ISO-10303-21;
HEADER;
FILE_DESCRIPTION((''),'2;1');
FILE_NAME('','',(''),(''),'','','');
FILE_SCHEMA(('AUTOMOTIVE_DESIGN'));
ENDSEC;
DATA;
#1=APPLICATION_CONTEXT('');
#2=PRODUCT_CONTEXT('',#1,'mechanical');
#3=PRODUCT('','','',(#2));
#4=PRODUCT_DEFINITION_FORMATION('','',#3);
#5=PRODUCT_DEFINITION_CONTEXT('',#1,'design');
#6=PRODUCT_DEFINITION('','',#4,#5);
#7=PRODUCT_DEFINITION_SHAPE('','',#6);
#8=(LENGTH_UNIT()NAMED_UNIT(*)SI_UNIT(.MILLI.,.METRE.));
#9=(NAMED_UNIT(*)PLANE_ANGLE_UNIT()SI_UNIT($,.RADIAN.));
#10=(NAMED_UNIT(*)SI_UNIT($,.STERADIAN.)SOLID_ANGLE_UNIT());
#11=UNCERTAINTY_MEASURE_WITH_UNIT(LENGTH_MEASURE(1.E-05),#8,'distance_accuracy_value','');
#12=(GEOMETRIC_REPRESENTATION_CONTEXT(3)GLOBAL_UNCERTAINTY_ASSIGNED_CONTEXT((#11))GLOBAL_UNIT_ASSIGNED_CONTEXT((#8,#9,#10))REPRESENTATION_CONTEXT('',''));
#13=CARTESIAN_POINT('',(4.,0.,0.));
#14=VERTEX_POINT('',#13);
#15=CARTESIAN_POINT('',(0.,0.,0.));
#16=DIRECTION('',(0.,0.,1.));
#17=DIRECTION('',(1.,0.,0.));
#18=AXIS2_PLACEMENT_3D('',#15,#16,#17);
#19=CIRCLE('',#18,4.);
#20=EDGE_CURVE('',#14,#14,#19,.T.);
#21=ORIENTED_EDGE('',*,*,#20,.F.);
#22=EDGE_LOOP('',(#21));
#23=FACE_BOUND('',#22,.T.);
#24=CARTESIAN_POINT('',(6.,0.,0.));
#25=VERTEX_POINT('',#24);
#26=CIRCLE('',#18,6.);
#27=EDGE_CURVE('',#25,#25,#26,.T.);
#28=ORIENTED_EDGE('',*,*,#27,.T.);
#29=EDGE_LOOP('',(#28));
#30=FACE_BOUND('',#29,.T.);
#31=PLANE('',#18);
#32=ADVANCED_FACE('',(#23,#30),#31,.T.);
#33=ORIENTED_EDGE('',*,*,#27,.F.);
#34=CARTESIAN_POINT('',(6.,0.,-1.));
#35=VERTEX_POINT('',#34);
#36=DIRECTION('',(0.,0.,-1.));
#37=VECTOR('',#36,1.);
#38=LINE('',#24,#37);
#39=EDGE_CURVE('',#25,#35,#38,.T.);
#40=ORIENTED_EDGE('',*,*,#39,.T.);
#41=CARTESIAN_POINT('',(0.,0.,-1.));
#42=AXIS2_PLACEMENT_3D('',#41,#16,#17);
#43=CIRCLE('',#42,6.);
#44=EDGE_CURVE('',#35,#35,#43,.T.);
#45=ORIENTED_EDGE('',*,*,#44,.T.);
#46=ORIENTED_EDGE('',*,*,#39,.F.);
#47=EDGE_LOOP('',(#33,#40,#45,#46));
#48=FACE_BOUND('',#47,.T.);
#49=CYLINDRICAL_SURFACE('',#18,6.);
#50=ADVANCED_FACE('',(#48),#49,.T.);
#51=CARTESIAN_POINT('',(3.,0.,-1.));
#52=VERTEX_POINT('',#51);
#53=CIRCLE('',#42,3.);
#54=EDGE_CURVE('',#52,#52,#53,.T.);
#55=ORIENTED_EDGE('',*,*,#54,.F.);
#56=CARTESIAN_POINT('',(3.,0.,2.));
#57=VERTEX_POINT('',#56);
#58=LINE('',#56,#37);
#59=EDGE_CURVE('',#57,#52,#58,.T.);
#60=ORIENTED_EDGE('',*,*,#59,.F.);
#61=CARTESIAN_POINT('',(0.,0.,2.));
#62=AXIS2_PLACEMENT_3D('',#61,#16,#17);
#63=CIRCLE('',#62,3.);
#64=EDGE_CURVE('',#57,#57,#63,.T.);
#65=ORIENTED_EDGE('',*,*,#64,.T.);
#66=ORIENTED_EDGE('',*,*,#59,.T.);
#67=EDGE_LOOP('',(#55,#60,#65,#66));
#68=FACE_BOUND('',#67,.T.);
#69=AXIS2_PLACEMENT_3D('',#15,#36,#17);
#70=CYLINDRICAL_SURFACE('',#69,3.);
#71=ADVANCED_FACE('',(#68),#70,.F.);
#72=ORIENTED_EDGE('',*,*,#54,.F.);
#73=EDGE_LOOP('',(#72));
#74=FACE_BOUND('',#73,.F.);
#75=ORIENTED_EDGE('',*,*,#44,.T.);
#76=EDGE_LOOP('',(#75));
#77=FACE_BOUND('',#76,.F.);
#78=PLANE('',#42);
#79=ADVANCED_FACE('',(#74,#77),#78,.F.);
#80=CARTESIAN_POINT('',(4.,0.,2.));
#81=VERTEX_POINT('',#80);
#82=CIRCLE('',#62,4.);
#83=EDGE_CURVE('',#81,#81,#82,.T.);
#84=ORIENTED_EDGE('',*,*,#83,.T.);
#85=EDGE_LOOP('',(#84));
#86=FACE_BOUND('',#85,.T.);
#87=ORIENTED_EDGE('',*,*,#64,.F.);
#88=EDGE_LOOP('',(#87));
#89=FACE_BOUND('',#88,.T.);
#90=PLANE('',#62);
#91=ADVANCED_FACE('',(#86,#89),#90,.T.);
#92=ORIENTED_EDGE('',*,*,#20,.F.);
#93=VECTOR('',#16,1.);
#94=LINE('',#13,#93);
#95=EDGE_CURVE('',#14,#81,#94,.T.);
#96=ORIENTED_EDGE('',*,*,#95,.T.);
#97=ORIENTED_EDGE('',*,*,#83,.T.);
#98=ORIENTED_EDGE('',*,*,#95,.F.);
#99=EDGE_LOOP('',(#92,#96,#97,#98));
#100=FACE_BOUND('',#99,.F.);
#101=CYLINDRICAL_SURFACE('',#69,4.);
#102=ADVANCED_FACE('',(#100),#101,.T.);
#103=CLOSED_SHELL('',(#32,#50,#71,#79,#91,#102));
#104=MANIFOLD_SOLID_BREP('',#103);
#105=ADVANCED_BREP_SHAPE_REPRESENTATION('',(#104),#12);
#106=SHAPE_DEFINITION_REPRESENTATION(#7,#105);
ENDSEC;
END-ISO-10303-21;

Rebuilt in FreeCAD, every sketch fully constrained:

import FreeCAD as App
import Part
import Sketcher

V = App.Vector
Q = App.Units.Quantity

doc = App.newDocument("Part")
params = doc.addObject("Spreadsheet::Sheet", "Params")
for row, (alias, value) in enumerate([
    ("sketch1_diameter", "8 mm"),
    ("sketch1_diameter2", "6 mm"),
    ("pad1_length", "2 mm"),
    ("sketch2_diameter", "12 mm"),
    ("sketch2_diameter2", "6 mm"),
    ("pad2_length", "1 mm"),
], start=1):
    params.set(f"A{row}", alias)
    params.set(f"B{row}", "=" + value)
    params.setAlias(f"B{row}", alias)

body = doc.addObject("PartDesign::Body", "Body")

sketch1 = doc.addObject("Sketcher::SketchObject", "Sketch")
body.addObject(sketch1)
sketch1.AttachmentSupport = (doc.XY_Plane, [""])
sketch1.MapMode = "FlatFace"
sketch1.addGeometry([
    Part.Circle(V(0, 0, 0), V(0, 0, 1), 4),
    Part.Circle(V(0, 0, 0), V(0, 0, 1), 3),
], False)
sketch1.addConstraint([
    Sketcher.Constraint("Coincident", 0, 3, -1, 1),
    Sketcher.Constraint("Coincident", 1, 3, -1, 1),
    Sketcher.Constraint("Diameter", 0, Q("8 mm")),
    Sketcher.Constraint("Diameter", 1, Q("6 mm")),
])
sketch1.setExpression("Constraints[2]", "Params.sketch1_diameter")
sketch1.setExpression("Constraints[3]", "Params.sketch1_diameter2")
pad1 = doc.addObject("PartDesign::Pad", "Pad")
body.addObject(pad1)
pad1.Profile = sketch1
pad1.setExpression("Length", "Params.pad1_length")

sketch2 = doc.addObject("Sketcher::SketchObject", "Sketch001")
body.addObject(sketch2)
sketch2.AttachmentSupport = (doc.XY_Plane, [""])
sketch2.MapMode = "FlatFace"
sketch2.addGeometry([
    Part.Circle(V(0, 0, 0), V(0, 0, 1), 6),
    Part.Circle(V(0, 0, 0), V(0, 0, 1), 3),
], False)
sketch2.addConstraint([
    Sketcher.Constraint("Coincident", 0, 3, -1, 1),
    Sketcher.Constraint("Coincident", 1, 3, -1, 1),
    Sketcher.Constraint("Diameter", 0, Q("12 mm")),
    Sketcher.Constraint("Diameter", 1, Q("6 mm")),
])
sketch2.setExpression("Constraints[2]", "Params.sketch2_diameter")
sketch2.setExpression("Constraints[3]", "Params.sketch2_diameter2")
pad2 = doc.addObject("PartDesign::Pad", "Pad001")
body.addObject(pad2)
pad2.Profile = sketch2
pad2.setExpression("Length", "Params.pad2_length")
pad2.Reversed = True

doc.recompute()
